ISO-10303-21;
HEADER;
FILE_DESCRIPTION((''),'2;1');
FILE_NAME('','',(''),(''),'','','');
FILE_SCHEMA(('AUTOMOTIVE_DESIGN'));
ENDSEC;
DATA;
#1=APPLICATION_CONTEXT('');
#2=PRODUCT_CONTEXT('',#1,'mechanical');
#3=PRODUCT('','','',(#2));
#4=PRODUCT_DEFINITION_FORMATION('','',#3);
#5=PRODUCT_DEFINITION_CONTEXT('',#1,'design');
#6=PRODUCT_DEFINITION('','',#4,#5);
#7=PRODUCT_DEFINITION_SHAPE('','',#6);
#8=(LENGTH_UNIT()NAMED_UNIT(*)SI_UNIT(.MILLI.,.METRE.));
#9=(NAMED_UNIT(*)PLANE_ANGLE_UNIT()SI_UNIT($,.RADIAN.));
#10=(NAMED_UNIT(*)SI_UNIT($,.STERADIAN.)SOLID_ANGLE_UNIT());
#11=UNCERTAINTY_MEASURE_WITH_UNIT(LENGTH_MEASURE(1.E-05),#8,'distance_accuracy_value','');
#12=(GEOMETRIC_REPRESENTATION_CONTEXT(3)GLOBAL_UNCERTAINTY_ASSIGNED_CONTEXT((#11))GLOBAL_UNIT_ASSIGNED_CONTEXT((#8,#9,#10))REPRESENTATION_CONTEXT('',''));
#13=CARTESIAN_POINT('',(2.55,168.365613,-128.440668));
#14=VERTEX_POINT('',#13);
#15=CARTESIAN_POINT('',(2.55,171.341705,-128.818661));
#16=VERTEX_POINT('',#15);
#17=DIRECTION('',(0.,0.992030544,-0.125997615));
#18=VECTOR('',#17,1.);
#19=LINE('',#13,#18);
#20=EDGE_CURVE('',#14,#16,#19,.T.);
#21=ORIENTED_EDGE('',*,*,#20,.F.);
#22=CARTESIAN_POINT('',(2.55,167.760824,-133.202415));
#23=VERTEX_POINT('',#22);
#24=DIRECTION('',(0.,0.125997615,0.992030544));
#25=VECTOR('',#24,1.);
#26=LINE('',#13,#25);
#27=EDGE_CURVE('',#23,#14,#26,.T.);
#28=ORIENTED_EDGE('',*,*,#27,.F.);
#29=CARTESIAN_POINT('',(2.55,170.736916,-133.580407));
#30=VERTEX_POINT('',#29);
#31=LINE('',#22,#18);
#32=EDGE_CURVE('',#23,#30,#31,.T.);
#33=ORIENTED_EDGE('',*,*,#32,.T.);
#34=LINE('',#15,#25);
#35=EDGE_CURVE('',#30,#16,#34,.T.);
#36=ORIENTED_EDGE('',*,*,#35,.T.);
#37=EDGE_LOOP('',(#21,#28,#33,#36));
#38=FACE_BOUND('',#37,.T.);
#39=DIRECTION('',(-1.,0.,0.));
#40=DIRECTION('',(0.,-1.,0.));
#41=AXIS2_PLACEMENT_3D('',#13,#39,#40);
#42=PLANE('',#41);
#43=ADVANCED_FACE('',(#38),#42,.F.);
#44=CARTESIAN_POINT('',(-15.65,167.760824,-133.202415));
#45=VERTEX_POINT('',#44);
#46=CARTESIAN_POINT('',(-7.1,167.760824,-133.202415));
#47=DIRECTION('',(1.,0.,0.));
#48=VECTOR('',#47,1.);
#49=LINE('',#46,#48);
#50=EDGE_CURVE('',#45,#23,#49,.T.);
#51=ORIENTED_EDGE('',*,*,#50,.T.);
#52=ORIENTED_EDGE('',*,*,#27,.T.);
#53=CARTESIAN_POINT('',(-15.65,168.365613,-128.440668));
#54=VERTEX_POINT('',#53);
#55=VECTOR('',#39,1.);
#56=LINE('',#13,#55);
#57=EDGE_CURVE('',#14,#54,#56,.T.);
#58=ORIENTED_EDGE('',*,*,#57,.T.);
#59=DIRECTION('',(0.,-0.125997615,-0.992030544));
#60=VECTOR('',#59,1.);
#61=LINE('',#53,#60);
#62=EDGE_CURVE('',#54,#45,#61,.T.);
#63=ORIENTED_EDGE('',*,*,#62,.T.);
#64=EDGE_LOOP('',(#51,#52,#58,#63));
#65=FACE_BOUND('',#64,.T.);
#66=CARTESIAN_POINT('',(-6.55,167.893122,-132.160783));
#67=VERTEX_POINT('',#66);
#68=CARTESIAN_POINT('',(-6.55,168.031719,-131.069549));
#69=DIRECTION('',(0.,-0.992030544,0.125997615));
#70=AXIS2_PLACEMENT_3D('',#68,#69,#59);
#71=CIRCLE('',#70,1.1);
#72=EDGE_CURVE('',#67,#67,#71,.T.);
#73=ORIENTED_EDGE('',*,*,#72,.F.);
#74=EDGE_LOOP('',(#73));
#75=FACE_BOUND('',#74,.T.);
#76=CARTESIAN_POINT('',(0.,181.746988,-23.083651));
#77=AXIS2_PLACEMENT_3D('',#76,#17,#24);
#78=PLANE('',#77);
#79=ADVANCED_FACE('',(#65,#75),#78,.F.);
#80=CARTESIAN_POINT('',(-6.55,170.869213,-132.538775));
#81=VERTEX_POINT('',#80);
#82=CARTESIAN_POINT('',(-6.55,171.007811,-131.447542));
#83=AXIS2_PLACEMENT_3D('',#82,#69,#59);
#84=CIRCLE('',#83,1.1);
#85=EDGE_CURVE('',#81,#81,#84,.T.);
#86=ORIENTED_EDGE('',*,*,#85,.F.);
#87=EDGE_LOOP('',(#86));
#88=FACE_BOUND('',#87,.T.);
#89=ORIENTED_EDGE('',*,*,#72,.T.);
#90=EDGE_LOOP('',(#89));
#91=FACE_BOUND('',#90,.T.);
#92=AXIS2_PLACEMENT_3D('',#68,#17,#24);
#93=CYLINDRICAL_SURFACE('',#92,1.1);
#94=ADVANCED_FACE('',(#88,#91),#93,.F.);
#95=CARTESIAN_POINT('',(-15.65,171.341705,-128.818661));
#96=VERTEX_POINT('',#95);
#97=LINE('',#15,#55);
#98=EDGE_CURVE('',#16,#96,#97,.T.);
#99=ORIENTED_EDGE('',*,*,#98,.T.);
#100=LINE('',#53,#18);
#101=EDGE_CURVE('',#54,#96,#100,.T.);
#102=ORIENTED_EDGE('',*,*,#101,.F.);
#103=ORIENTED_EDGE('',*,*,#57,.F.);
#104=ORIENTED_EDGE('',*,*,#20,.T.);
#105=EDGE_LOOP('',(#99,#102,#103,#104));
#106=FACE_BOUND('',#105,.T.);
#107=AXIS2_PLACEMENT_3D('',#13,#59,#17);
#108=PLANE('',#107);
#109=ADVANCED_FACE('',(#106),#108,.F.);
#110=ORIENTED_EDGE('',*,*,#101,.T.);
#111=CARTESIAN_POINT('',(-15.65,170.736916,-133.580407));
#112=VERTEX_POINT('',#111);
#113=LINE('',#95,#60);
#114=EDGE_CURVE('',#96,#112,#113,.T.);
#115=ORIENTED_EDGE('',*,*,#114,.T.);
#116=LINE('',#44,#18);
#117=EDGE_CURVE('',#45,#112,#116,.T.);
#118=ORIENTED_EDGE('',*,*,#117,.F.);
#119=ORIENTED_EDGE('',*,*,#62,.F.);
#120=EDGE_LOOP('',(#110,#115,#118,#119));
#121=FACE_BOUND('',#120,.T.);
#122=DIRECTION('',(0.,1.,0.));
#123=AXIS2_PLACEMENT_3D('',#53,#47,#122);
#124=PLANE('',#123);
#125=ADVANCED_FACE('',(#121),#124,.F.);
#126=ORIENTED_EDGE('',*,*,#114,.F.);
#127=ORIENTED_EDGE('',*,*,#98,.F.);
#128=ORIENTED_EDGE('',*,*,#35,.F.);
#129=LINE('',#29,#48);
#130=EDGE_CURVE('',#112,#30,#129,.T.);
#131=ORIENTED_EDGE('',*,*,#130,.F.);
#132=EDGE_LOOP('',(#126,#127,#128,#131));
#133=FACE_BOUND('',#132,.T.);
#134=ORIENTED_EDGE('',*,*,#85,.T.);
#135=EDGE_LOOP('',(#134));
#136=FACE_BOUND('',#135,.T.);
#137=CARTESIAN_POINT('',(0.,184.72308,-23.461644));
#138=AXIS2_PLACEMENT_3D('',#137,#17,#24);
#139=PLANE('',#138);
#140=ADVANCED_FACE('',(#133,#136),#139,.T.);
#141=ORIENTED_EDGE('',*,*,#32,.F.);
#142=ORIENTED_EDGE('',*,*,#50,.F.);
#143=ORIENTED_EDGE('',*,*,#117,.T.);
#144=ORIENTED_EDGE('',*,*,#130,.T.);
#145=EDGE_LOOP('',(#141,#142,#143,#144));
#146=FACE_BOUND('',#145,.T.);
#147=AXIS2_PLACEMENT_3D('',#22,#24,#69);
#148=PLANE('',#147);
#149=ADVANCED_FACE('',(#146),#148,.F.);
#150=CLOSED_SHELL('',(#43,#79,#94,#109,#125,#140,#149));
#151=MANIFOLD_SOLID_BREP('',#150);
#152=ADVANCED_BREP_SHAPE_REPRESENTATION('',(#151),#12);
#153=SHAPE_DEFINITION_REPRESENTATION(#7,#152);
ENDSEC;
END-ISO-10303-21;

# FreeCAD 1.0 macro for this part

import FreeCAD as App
import Part
import Sketcher
from FreeCAD import Vector

doc = App.newDocument("Part")
body = doc.addObject("PartDesign::Body", "Body")

# Sketch on an angled plane
sketch1 = doc.addObject("Sketcher::SketchObject", "Sketch")
body.addObject(sketch1)
sketch1.Placement = App.Placement(Vector(0, 184.72308, -23.461644), App.Rotation(Vector(1, 0, 0), Vector(0, 0.125997615, 0.992030544), Vector(0, -0.992030544, 0.125997615), "ZXY"))
sketch1.addGeometry([
    Part.LineSegment(Vector(2.5, -106.2, 0), Vector(-15.7, -106.2, 0)),  # 0
    Part.LineSegment(Vector(-15.7, -106.2, 0), Vector(-15.7, -111, 0)),  # 1
    Part.LineSegment(Vector(-15.7, -111, 0), Vector(2.5, -111, 0)),  # 2
    Part.LineSegment(Vector(2.5, -111, 0), Vector(2.5, -106.2, 0)),  # 3
    Part.Circle(Vector(-6.5, -108.9, 0), Vector(0, 0, 1), 1.1),  # 4
], False)
sketch1.addConstraint([
    Sketcher.Constraint("Coincident", 0, 2, 1, 1),
    Sketcher.Constraint("Coincident", 1, 2, 2, 1),
    Sketcher.Constraint("Coincident", 2, 2, 3, 1),
    Sketcher.Constraint("Coincident", 3, 2, 0, 1),
    Sketcher.Constraint("Horizontal", 0),
    Sketcher.Constraint("Vertical", 1),
    Sketcher.Constraint("Horizontal", 2),
    Sketcher.Constraint("Vertical", 3),
    Sketcher.Constraint("Diameter", 4, 2.2),
    Sketcher.Constraint("DistanceX", 0, 2, 0, 1, 18.2),
    Sketcher.Constraint("DistanceY", 1, 2, 1, 1, 4.8),
    Sketcher.Constraint("DistanceX", 0, 2, 4, 3, 9.1),
    Sketcher.Constraint("DistanceX", 4, 3, -1, 1, 6.55),
    Sketcher.Constraint("DistanceY", 4, 3, 0, 2, 2.65),
    Sketcher.Constraint("DistanceY", 4, 3, -1, 1, 108.8534),
])
pad1 = doc.addObject("PartDesign::Pad", "Pad")
body.addObject(pad1)
pad1.Profile = sketch1
pad1.Length = 3

doc.recompute()
